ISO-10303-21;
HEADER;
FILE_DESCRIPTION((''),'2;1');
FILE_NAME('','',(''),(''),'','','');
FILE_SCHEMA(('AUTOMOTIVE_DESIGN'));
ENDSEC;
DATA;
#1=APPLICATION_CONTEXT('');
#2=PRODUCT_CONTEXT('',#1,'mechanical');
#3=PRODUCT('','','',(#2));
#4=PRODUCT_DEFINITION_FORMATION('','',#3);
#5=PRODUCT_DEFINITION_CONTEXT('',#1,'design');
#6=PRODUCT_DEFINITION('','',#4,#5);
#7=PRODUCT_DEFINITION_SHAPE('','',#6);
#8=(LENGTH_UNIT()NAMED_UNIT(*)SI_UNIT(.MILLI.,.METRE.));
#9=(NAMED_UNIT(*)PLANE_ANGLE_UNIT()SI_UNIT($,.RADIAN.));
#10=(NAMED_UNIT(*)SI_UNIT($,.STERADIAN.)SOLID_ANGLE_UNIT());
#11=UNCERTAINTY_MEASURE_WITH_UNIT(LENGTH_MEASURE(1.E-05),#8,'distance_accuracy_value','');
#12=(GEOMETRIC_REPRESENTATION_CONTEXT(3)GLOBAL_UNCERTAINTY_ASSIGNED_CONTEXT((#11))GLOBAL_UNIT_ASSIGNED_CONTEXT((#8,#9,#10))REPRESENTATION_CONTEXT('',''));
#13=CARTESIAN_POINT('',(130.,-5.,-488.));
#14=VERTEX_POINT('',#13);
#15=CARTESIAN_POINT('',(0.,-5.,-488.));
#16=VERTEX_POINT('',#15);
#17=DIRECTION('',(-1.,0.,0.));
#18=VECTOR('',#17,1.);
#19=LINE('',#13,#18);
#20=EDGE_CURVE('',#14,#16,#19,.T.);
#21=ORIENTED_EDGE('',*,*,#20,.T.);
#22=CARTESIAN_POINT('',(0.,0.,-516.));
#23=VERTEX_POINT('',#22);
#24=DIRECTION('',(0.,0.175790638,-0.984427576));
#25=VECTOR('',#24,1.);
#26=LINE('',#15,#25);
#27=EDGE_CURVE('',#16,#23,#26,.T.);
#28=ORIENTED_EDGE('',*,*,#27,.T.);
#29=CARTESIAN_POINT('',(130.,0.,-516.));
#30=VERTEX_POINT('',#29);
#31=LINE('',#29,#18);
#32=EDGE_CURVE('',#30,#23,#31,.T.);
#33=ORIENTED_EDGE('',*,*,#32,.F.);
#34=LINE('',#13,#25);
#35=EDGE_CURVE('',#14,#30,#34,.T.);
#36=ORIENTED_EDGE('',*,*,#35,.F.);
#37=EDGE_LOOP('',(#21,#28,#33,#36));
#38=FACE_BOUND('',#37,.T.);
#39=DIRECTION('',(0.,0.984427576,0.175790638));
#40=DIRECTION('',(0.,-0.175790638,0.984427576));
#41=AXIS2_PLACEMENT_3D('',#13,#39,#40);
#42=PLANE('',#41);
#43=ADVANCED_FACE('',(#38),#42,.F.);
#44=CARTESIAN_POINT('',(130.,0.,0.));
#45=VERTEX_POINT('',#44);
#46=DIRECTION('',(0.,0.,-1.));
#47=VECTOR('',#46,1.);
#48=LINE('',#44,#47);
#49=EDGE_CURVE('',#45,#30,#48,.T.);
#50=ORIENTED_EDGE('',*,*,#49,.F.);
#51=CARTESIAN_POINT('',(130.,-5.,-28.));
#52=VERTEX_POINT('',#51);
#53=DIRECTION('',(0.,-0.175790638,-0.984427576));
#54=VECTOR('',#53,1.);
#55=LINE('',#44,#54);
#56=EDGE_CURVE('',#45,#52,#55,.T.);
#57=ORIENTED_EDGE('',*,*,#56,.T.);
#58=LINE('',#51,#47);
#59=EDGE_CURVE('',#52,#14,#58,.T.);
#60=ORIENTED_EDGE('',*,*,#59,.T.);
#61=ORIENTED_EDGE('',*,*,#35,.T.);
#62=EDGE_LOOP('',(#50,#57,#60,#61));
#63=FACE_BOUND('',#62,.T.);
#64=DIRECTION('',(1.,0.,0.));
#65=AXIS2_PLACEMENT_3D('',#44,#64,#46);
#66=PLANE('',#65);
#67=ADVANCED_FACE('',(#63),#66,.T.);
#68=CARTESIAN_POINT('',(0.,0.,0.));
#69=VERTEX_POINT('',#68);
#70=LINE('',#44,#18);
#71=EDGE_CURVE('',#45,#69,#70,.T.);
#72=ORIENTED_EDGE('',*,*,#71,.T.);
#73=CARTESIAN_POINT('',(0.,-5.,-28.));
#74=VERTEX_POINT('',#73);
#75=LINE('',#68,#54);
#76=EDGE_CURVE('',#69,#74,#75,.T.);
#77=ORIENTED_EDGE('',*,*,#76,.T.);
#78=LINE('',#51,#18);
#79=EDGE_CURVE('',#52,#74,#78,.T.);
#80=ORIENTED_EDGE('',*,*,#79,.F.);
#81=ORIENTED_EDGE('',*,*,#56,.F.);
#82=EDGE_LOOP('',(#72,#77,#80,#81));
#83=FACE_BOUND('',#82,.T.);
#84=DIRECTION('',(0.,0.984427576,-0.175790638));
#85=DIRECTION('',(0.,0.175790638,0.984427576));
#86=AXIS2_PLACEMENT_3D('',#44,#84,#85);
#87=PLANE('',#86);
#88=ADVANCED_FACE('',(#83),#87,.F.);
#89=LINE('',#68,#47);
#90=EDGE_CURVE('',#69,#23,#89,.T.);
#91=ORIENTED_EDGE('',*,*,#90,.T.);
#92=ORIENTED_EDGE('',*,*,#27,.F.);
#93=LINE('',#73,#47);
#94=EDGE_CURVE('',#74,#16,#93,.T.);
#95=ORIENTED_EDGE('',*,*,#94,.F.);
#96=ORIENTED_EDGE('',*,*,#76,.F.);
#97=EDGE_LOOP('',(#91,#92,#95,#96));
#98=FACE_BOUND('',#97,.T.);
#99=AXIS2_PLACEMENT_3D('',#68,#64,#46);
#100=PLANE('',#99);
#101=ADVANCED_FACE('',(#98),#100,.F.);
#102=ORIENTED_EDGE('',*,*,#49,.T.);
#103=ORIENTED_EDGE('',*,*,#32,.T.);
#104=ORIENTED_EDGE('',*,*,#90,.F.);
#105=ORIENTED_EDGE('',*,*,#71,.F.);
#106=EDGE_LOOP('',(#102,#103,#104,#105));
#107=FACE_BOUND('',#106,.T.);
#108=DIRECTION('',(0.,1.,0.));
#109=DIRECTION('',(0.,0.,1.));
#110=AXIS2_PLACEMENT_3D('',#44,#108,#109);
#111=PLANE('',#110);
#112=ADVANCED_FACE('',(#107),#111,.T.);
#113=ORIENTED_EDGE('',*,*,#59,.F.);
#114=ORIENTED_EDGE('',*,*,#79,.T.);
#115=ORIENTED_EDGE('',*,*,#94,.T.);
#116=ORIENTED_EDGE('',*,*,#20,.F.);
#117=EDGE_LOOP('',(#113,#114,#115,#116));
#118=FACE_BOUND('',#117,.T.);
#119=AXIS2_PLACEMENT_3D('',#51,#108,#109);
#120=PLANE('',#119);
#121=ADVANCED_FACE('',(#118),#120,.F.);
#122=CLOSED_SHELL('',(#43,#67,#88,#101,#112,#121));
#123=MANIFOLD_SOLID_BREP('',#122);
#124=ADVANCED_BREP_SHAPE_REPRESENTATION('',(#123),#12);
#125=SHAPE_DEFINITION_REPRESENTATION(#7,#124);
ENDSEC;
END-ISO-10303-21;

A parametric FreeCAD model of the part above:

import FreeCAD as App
import Part
import Sketcher


def add_polygon(sketch, points):
    """Adds a closed chain of lines whose ends are joined by coincident constraints."""
    first, n = sketch.GeometryCount, len(points)
    for a, b in zip(points, points[1:] + points[:1]):
        sketch.addGeometry(Part.LineSegment(App.Vector(*a, 0), App.Vector(*b, 0)), False)
    for i in range(n):
        sketch.addConstraint(Sketcher.Constraint("Coincident", first + i, 2, first + (i + 1) % n, 1))

doc = App.newDocument("Part")
body = doc.addObject("PartDesign::Body", "Body")

# Sketch on YZ plane
sketch1 = doc.addObject("Sketcher::SketchObject", "Sketch")
body.addObject(sketch1)
sketch1.AttachmentSupport = (doc.YZ_Plane, [""])
sketch1.MapMode = "FlatFace"
add_polygon(sketch1, [(-5, -28), (-5, -488), (0, -516), (0, 0)])  # lines 0-3
sketch1.addConstraint([
    Sketcher.Constraint("Vertical", 0),
    Sketcher.Constraint("Vertical", 2),
    Sketcher.Constraint("Coincident", 2, 2, -1, 1),
    Sketcher.Constraint("Equal", 1, 3),
    Sketcher.Constraint("DistanceY", 0, 2, 0, 1, 460.0),
    Sketcher.Constraint("DistanceY", 2, 1, 2, 2, 516.0),
    Sketcher.Constraint("DistanceX", 0, 2, -1, 1, 5.0),
])
pad1 = doc.addObject("PartDesign::Pad", "Pad")
body.addObject(pad1)
pad1.Profile = sketch1
pad1.Length = 130

doc.recompute()
